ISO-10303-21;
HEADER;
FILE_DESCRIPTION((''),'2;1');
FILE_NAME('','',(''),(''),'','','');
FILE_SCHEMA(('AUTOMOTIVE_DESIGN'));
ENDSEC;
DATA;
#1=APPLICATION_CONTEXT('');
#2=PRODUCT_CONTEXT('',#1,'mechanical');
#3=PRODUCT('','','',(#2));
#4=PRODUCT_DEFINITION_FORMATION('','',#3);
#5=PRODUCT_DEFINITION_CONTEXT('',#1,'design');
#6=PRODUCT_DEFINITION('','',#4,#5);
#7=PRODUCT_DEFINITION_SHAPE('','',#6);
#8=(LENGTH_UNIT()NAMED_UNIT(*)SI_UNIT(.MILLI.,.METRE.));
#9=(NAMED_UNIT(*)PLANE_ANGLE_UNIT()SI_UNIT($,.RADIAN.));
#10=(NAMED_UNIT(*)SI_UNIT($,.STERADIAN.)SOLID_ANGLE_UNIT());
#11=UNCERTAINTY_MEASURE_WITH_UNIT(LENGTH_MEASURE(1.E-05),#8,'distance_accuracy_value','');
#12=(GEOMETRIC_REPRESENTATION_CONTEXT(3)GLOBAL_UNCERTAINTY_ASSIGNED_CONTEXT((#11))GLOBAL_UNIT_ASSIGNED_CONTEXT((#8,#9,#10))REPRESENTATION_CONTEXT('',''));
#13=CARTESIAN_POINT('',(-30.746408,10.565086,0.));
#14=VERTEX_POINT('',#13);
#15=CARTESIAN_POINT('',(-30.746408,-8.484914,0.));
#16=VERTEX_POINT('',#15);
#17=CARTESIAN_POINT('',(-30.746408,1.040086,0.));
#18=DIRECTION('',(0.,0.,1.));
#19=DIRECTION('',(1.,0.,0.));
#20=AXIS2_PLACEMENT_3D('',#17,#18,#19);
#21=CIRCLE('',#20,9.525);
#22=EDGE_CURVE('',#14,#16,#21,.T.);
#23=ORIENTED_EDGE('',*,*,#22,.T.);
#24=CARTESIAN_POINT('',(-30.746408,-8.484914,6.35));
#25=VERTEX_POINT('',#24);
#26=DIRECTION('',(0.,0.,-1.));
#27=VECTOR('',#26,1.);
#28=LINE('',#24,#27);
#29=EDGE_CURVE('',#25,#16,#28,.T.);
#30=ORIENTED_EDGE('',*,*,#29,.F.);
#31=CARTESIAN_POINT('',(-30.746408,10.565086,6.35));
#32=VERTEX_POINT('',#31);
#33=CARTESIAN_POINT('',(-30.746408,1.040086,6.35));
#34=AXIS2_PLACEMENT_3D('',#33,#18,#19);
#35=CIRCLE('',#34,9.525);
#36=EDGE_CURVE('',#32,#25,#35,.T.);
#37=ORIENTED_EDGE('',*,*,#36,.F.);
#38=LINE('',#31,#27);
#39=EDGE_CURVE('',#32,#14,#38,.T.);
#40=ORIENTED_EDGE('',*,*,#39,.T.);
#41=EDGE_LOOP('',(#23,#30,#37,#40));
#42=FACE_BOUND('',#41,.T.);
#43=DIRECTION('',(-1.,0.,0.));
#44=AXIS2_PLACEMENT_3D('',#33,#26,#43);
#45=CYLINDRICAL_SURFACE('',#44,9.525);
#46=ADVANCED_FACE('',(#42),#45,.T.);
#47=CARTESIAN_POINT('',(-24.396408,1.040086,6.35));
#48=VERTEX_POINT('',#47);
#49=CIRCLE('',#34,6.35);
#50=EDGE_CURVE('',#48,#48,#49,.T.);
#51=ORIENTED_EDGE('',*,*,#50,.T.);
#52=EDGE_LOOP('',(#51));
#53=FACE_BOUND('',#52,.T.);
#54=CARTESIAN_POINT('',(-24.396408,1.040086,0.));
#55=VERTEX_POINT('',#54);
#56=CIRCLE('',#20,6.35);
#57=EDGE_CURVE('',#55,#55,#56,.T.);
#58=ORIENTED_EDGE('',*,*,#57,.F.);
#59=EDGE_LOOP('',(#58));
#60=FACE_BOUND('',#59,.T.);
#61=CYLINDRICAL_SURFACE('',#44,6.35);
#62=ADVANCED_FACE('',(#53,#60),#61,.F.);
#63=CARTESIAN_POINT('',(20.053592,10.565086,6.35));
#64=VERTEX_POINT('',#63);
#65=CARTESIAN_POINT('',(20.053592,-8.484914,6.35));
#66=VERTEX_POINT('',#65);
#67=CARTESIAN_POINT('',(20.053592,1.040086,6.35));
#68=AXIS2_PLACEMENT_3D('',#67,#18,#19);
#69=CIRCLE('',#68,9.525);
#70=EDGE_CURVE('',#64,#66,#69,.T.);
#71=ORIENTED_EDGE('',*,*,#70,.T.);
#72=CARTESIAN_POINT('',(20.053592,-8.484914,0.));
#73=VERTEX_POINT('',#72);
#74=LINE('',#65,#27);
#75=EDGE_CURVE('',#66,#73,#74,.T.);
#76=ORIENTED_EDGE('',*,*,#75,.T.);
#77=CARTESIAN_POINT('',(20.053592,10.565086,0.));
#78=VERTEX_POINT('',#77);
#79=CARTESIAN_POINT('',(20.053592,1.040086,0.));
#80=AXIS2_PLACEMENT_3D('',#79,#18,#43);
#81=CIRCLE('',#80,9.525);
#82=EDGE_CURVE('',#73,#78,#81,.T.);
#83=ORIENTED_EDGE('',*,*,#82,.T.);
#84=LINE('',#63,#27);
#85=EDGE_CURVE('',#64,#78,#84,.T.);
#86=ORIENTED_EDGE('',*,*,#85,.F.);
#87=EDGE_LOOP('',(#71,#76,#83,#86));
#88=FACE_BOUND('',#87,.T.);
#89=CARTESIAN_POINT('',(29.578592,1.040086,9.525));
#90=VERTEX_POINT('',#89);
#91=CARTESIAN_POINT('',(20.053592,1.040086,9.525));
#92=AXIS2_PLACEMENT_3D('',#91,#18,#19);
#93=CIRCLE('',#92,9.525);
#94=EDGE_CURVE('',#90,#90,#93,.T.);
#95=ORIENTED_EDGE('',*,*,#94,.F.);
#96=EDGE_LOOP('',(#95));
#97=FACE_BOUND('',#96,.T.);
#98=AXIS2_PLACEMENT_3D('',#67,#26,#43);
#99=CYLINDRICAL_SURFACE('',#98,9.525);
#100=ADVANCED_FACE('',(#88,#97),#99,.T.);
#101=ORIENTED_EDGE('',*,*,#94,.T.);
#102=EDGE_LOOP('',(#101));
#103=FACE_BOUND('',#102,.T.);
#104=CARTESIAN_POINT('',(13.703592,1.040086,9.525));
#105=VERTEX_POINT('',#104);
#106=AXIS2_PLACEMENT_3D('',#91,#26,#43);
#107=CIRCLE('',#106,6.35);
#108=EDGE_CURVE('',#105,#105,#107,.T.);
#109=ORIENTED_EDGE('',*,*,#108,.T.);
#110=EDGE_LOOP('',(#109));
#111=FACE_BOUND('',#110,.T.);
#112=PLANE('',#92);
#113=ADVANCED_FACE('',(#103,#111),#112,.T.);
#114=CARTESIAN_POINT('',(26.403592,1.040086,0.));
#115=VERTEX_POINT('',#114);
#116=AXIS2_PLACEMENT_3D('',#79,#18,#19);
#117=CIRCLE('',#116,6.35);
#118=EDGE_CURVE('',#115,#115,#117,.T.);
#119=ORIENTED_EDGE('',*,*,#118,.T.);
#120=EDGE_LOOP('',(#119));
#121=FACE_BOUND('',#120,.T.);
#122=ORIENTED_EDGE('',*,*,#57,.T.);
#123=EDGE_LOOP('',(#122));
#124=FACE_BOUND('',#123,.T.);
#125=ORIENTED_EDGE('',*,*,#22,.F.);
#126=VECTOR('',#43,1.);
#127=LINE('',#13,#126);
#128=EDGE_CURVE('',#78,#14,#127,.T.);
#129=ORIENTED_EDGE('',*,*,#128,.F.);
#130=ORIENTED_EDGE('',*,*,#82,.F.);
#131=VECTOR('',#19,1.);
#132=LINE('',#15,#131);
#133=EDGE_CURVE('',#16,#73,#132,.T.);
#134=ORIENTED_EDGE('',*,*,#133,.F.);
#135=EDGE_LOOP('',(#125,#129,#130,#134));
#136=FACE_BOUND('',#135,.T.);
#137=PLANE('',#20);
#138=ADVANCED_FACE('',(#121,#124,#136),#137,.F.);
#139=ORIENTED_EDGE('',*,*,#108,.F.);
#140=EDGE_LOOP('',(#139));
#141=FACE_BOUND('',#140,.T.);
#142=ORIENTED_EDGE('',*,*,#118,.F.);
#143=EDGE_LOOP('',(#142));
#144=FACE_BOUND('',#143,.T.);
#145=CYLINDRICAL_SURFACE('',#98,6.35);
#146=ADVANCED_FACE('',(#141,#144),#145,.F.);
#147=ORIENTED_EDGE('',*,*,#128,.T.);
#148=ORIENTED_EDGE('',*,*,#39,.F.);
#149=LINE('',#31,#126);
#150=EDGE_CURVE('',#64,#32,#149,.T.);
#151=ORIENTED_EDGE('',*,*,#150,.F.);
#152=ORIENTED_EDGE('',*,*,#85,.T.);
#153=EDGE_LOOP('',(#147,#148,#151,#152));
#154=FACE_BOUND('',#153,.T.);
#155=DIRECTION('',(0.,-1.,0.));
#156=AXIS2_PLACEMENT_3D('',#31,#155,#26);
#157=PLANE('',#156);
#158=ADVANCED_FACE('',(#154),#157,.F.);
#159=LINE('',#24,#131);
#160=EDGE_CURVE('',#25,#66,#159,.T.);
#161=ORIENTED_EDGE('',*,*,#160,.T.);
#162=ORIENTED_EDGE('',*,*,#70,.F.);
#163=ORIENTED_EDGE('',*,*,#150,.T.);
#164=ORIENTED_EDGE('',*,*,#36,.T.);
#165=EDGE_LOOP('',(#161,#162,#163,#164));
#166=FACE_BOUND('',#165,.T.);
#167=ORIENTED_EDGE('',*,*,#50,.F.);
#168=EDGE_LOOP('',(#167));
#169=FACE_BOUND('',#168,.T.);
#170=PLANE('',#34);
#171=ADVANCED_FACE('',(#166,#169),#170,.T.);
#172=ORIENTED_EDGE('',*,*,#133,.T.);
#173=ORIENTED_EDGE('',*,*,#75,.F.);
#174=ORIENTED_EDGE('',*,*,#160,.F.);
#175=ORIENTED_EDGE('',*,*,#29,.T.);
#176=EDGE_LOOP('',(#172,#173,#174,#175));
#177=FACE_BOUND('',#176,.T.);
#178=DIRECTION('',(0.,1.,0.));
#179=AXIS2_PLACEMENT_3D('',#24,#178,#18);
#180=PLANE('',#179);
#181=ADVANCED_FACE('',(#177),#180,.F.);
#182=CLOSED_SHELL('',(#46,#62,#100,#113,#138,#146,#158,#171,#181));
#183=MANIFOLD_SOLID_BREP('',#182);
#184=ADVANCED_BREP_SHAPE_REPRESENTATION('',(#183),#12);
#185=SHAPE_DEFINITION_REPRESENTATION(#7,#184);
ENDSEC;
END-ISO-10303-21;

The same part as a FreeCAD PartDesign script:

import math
import FreeCAD as App
import Part
import Sketcher
Q = App.Units.Quantity

doc = App.newDocument("Part")
body = doc.addObject("PartDesign::Body", "Body")

# Sketch on XY plane
sketch1 = body.newObject("Sketcher::SketchObject", "Sketch")
sketch1.AttachmentSupport = (doc.getObject("XY_Plane"), [""])
sketch1.MapMode = "FlatFace"
sketch1.addGeometry(Part.LineSegment(App.Vector(20.053592, 10.565086, 0), App.Vector(-30.746408, 10.565086, 0)), False)
sketch1.addGeometry(Part.ArcOfCircle(Part.Circle(App.Vector(-30.746408, 1.040086, 0), App.Vector(0, 0, 1), 9.525), math.radians(90), math.radians(270)), False)
sketch1.addGeometry(Part.LineSegment(App.Vector(-30.746408, -8.484914, 0), App.Vector(20.053592, -8.484914, 0)), False)
sketch1.addGeometry(Part.ArcOfCircle(Part.Circle(App.Vector(20.053592, 1.040086, 0), App.Vector(0, 0, 1), 9.525), math.radians(-90), math.radians(90)), False)
sketch1.addGeometry(Part.Circle(App.Vector(20.053592, 1.040086, 0), App.Vector(0, 0, 1), 6.35), False)
sketch1.addGeometry(Part.Circle(App.Vector(-30.746408, 1.040086, 0), App.Vector(0, 0, 1), 6.35), False)
sketch1.addConstraint(Sketcher.Constraint("Tangent", 0, 2, 1, 1))
sketch1.addConstraint(Sketcher.Constraint("Tangent", 1, 2, 2, 1))
sketch1.addConstraint(Sketcher.Constraint("Tangent", 2, 2, 3, 1))
sketch1.addConstraint(Sketcher.Constraint("Tangent", 3, 2, 0, 1))
sketch1.addConstraint(Sketcher.Constraint("Horizontal", 0))
sketch1.addConstraint(Sketcher.Constraint("Horizontal", 2))
sketch1.addConstraint(Sketcher.Constraint("Coincident", 4, 3, 3, 3))
sketch1.addConstraint(Sketcher.Constraint("Coincident", 5, 3, 1, 3))
sketch1.addConstraint(Sketcher.Constraint("Equal", 4, 5))
sketch1.addConstraint(Sketcher.Constraint("Diameter", 4, Q("0.5 in")))
sketch1.addConstraint(Sketcher.Constraint("DistanceX", 0, 2, 0, 1, Q("2 in")))
sketch1.addConstraint(Sketcher.Constraint("Radius", 1, Q("0.375 in")))
sketch1.addConstraint(Sketcher.Constraint("DistanceX", 1, 3, -1, 1, 30.746408))
sketch1.addConstraint(Sketcher.Constraint("DistanceY", -1, 1, 1, 3, 1.040086))
pad1 = body.newObject("PartDesign::Pad", "Pad")
pad1.Profile = sketch1
pad1.Length = Q("0.25 in")

# Sketch on XY plane
sketch2 = body.newObject("Sketcher::SketchObject", "Sketch001")
sketch2.AttachmentSupport = (doc.getObject("XY_Plane"), [""])
sketch2.MapMode = "FlatFace"
sketch2.AttachmentOffset = App.Placement(App.Vector(0, 0, 0.25 * 25.4), App.Rotation())
sketch2.addGeometry(Part.Circle(App.Vector(20.053592, 1.040086, 0), App.Vector(0, 0, 1), 9.525), False)
sketch2.addConstraint(Sketcher.Constraint("Diameter", 0, Q("0.75 in")))
sketch2.addConstraint(Sketcher.Constraint("DistanceX", -1, 1, 0, 3, 20.053592))
sketch2.addConstraint(Sketcher.Constraint("DistanceY", -1, 1, 0, 3, 1.040086))
pad2 = body.newObject("PartDesign::Pad", "Pad001")
pad2.Profile = sketch2
pad2.Length = Q("0.125 in")

# Sketch on XY plane
sketch3 = body.newObject("Sketcher::SketchObject", "Sketch002")
sketch3.AttachmentSupport = (doc.getObject("XY_Plane"), [""])
sketch3.MapMode = "FlatFace"
sketch3.addGeometry(Part.Circle(App.Vector(20.053592, 1.040086, 0), App.Vector(0, 0, 1), 6.35), False)
sketch3.addConstraint(Sketcher.Constraint("Diameter", 0, Q("0.5 in")))
sketch3.addConstraint(Sketcher.Constraint("DistanceX", -1, 1, 0, 3, 20.053592))
sketch3.addConstraint(Sketcher.Constraint("DistanceY", -1, 1, 0, 3, 1.040086))
pocket1 = body.newObject("PartDesign::Pocket", "Pocket")
pocket1.Profile = sketch3
pocket1.Type = "ThroughAll"
pocket1.Reversed = True

doc.recompute()
